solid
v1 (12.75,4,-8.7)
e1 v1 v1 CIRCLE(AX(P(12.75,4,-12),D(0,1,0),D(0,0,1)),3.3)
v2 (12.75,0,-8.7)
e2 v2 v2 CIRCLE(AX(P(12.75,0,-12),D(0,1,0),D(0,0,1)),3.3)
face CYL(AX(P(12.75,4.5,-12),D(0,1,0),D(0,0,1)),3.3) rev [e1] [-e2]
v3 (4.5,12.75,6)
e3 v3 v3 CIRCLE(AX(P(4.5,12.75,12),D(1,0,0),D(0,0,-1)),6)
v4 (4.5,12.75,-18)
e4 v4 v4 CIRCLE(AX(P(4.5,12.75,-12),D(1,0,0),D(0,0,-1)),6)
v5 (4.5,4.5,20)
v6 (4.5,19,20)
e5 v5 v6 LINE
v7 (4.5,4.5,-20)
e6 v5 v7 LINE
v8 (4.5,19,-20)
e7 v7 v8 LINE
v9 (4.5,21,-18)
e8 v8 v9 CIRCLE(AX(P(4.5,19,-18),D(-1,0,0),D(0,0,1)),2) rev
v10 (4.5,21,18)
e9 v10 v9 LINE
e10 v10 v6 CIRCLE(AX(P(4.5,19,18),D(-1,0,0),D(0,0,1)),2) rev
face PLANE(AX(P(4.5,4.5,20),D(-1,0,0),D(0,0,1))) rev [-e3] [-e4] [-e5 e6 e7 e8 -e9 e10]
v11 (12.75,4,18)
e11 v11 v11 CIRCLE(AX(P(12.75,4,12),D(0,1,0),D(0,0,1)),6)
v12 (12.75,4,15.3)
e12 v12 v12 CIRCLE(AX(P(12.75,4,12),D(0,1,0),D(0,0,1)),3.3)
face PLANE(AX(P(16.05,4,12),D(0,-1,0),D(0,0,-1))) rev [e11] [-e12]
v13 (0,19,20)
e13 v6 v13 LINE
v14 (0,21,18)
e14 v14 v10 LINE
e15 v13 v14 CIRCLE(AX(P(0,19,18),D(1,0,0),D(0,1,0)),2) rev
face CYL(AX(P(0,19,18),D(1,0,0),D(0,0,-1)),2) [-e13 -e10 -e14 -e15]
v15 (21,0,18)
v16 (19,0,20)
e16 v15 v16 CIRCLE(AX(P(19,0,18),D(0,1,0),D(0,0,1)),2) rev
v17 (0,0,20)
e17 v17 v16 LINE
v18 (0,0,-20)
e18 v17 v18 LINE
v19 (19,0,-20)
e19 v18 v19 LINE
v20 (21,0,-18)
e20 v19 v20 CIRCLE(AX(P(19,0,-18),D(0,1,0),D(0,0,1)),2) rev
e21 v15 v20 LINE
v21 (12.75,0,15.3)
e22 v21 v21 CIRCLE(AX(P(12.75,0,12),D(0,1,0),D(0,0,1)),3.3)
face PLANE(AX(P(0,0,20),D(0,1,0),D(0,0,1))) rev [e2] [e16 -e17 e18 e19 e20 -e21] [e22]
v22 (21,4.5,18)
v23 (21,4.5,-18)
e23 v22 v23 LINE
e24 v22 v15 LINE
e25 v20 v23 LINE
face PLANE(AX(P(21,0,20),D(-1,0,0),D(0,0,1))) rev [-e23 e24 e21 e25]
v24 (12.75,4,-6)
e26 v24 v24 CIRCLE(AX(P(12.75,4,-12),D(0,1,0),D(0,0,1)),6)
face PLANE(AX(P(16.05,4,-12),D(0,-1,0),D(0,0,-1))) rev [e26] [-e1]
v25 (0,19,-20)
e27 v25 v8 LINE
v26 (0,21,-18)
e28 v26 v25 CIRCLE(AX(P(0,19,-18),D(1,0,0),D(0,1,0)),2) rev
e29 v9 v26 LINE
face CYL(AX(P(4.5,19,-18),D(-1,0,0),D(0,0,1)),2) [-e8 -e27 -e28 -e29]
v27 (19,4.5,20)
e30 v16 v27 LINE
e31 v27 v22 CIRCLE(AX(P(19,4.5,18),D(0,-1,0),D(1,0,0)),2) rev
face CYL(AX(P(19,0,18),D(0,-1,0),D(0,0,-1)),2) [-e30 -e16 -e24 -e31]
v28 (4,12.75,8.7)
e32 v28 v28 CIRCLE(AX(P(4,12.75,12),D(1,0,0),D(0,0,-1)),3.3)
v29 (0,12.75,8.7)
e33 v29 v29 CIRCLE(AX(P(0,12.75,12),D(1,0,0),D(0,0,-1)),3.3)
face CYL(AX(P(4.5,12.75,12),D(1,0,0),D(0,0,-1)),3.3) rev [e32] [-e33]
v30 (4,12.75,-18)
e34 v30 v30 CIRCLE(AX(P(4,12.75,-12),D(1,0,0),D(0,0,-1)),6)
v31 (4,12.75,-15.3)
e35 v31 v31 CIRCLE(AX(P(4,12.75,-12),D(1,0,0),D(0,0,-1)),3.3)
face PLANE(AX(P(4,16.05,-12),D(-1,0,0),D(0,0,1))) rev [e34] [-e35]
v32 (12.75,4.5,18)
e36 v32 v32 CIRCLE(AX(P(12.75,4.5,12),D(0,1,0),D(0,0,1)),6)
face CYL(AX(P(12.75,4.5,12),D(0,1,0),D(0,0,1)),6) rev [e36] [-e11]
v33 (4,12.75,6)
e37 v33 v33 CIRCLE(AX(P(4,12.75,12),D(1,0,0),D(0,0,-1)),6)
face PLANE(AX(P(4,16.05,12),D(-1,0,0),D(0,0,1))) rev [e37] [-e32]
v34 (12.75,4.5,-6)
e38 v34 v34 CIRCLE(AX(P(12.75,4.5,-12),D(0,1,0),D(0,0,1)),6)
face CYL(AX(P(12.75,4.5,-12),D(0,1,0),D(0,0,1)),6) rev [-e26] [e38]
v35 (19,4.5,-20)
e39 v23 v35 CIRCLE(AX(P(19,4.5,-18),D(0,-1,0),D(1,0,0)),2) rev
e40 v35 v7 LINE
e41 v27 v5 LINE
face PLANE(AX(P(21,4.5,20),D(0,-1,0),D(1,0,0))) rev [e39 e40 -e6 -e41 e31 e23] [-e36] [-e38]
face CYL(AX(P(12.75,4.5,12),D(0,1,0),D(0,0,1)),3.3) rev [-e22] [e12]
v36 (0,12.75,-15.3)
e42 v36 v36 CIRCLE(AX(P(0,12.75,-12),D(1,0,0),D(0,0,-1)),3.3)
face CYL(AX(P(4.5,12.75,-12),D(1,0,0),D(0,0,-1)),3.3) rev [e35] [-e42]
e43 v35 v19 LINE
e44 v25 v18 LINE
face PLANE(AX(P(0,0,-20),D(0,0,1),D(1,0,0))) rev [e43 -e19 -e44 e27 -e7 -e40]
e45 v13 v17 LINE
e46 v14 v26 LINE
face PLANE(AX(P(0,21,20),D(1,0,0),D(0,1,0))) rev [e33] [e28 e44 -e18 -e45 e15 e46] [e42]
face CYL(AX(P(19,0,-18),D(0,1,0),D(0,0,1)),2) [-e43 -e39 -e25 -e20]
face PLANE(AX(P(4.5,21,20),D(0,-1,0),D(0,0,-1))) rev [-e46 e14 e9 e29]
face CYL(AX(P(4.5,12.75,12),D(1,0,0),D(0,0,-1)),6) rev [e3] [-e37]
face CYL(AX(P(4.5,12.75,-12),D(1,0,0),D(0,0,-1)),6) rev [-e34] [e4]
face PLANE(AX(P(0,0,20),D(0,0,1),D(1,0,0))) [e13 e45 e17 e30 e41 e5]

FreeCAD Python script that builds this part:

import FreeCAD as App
import Part
import Sketcher

V = App.Vector
Q = App.Units.Quantity


def edges_at(feature, points):
    """Names of the edges that pass closest to the given points."""
    edges = feature.Shape.Edges
    near = lambda p: min(range(len(edges)), key=lambda i: edges[i].distToShape(Part.Vertex(*p))[0])
    return sorted({f"Edge{near(p) + 1}" for p in points})

doc = App.newDocument("Part")
params = doc.addObject("Spreadsheet::Sheet", "Params")
for row, (alias, value) in enumerate([
    ("sketch1_width", "21 mm"),
    ("sketch1_width2", "16.5 mm"),
    ("pad1_length", "40 mm"),
    ("sketch2_diameter", "6.6 mm"),
    ("hole_diameter", "6.6 mm"),
    ("hole_cbore_diameter", "12 mm"),
    ("hole_cbore_depth", "0.5 mm"),
    ("sketch3_diameter", "6.6 mm"),
    ("hole2_diameter", "6.6 mm"),
    ("hole2_cbore_diameter", "12 mm"),
    ("hole2_cbore_depth", "0.5 mm"),
    ("fillet_radius", "2 mm"),
], start=1):
    params.set(f"A{row}", alias)
    params.set(f"B{row}", "=" + value)
    params.setAlias(f"B{row}", alias)

body = doc.addObject("PartDesign::Body", "Body")

# Sketch on XY plane
sketch1 = body.newObject("Sketcher::SketchObject", "Sketch")
sketch1.AttachmentSupport = (doc.getObject("XY_Plane"), [""])
sketch1.MapMode = "FlatFace"
sketch1.addGeometry(Part.LineSegment(V(0, 21, 0), V(0, 0, 0)), False)
sketch1.addGeometry(Part.LineSegment(V(0, 0, 0), V(21, 0, 0)), False)
sketch1.addGeometry(Part.LineSegment(V(21, 0, 0), V(21, 4.5, 0)), False)
sketch1.addGeometry(Part.LineSegment(V(21, 4.5, 0), V(4.5, 4.5, 0)), False)
sketch1.addGeometry(Part.LineSegment(V(4.5, 4.5, 0), V(4.5, 21, 0)), False)
sketch1.addGeometry(Part.LineSegment(V(4.5, 21, 0), V(0, 21, 0)), False)
sketch1.addConstraint(Sketcher.Constraint("Coincident", 0, 2, 1, 1))
sketch1.addConstraint(Sketcher.Constraint("Coincident", 1, 2, 2, 1))
sketch1.addConstraint(Sketcher.Constraint("Coincident", 2, 2, 3, 1))
sketch1.addConstraint(Sketcher.Constraint("Coincident", 3, 2, 4, 1))
sketch1.addConstraint(Sketcher.Constraint("Coincident", 4, 2, 5, 1))
sketch1.addConstraint(Sketcher.Constraint("Coincident", 5, 2, 0, 1))
sketch1.addConstraint(Sketcher.Constraint("Vertical", 0))
sketch1.addConstraint(Sketcher.Constraint("Horizontal", 1))
sketch1.addConstraint(Sketcher.Constraint("Vertical", 2))
sketch1.addConstraint(Sketcher.Constraint("Horizontal", 3))
sketch1.addConstraint(Sketcher.Constraint("Vertical", 4))
sketch1.addConstraint(Sketcher.Constraint("Horizontal", 5))
sketch1.addConstraint(Sketcher.Constraint("Coincident", 0, 2, -1, 1))
sketch1.addConstraint(Sketcher.Constraint("Equal", 1, 0))
sketch1.addConstraint(Sketcher.Constraint("Equal", 5, 2))
sketch1.addConstraint(Sketcher.Constraint("DistanceX", 1, 1, 1, 2, Q("21 mm")))
sketch1.addConstraint(Sketcher.Constraint("DistanceX", 3, 2, 3, 1, Q("16.5 mm")))
sketch1.setExpression("Constraints[15]", "Params.sketch1_width")
sketch1.setExpression("Constraints[16]", "Params.sketch1_width2")
pad1 = body.newObject("PartDesign::Pad", "Pad")
pad1.Profile = sketch1
pad1.setExpression("Length", "Params.pad1_length")
pad1.Midplane = True

# Sketch on XZ plane
sketch2 = body.newObject("Sketcher::SketchObject", "Sketch001")
sketch2.AttachmentSupport = (doc.getObject("XZ_Plane"), [""])
sketch2.MapMode = "FlatFace"
sketch2.AttachmentOffset = App.Placement(V(0, 0, -4.5), App.Rotation())
sketch2.addGeometry(Part.Circle(V(12.75, -12, 0), V(0, 0, 1), 3.3), False)
sketch2.addGeometry(Part.Circle(V(12.75, 12, 0), V(0, 0, 1), 3.3), False)
sketch2.addConstraint(Sketcher.Constraint("Equal", 0, 1))
sketch2.addConstraint(Sketcher.Constraint("Symmetric", 0, 3, 1, 3, -1))
sketch2.addConstraint(Sketcher.Constraint("Diameter", 0, Q("6.6 mm")))
sketch2.addConstraint(Sketcher.Constraint("DistanceY", 0, 3, -1, 1, Q("12 mm")))
sketch2.addConstraint(Sketcher.Constraint("DistanceX", -1, 1, 0, 3, Q("12.75 mm")))
sketch2.setExpression("Constraints[2]", "Params.sketch2_diameter")
doc.recompute()
hole = body.newObject("PartDesign::Hole", "Hole")
hole.Profile = sketch2
hole.ThreadType = "None"
hole.setExpression("Diameter", "Params.hole_diameter")
hole.DepthType = "ThroughAll"
hole.HoleCutType = "Counterbore"
hole.setExpression("HoleCutDiameter", "Params.hole_cbore_diameter")
hole.setExpression("HoleCutDepth", "Params.hole_cbore_depth")
hole.Reversed = True

# Sketch on YZ plane
sketch3 = body.newObject("Sketcher::SketchObject", "Sketch002")
sketch3.AttachmentSupport = (doc.getObject("YZ_Plane"), [""])
sketch3.MapMode = "FlatFace"
sketch3.AttachmentOffset = App.Placement(V(0, 0, 4.5), App.Rotation())
sketch3.addGeometry(Part.Circle(V(12.75, -12, 0), V(0, 0, 1), 3.3), False)
sketch3.addGeometry(Part.Circle(V(12.75, 12, 0), V(0, 0, 1), 3.3), False)
sketch3.addConstraint(Sketcher.Constraint("Equal", 0, 1))
sketch3.addConstraint(Sketcher.Constraint("Symmetric", 0, 3, 1, 3, -1))
sketch3.addConstraint(Sketcher.Constraint("Diameter", 0, Q("6.6 mm")))
sketch3.addConstraint(Sketcher.Constraint("DistanceY", 0, 3, -1, 1, Q("12 mm")))
sketch3.addConstraint(Sketcher.Constraint("DistanceX", -1, 1, 0, 3, Q("12.75 mm")))
sketch3.setExpression("Constraints[2]", "Params.sketch3_diameter")
doc.recompute()
hole2 = body.newObject("PartDesign::Hole", "Hole001")
hole2.Profile = sketch3
hole2.ThreadType = "None"
hole2.setExpression("Diameter", "Params.hole2_diameter")
hole2.DepthType = "ThroughAll"
hole2.HoleCutType = "Counterbore"
hole2.setExpression("HoleCutDiameter", "Params.hole2_cbore_diameter")
hole2.setExpression("HoleCutDepth", "Params.hole2_cbore_depth")
doc.recompute()

fillet = body.newObject("PartDesign::Fillet", "Fillet")
fillet.Base = (hole2, edges_at(hole2, [
    (21, 2.25, 20),
    (2.25, 21, 20),
    (21, 2.25, -20),
    (2.25, 21, -20),
]))
fillet.setExpression("Radius", "Params.fillet_radius")

doc.recompute()
